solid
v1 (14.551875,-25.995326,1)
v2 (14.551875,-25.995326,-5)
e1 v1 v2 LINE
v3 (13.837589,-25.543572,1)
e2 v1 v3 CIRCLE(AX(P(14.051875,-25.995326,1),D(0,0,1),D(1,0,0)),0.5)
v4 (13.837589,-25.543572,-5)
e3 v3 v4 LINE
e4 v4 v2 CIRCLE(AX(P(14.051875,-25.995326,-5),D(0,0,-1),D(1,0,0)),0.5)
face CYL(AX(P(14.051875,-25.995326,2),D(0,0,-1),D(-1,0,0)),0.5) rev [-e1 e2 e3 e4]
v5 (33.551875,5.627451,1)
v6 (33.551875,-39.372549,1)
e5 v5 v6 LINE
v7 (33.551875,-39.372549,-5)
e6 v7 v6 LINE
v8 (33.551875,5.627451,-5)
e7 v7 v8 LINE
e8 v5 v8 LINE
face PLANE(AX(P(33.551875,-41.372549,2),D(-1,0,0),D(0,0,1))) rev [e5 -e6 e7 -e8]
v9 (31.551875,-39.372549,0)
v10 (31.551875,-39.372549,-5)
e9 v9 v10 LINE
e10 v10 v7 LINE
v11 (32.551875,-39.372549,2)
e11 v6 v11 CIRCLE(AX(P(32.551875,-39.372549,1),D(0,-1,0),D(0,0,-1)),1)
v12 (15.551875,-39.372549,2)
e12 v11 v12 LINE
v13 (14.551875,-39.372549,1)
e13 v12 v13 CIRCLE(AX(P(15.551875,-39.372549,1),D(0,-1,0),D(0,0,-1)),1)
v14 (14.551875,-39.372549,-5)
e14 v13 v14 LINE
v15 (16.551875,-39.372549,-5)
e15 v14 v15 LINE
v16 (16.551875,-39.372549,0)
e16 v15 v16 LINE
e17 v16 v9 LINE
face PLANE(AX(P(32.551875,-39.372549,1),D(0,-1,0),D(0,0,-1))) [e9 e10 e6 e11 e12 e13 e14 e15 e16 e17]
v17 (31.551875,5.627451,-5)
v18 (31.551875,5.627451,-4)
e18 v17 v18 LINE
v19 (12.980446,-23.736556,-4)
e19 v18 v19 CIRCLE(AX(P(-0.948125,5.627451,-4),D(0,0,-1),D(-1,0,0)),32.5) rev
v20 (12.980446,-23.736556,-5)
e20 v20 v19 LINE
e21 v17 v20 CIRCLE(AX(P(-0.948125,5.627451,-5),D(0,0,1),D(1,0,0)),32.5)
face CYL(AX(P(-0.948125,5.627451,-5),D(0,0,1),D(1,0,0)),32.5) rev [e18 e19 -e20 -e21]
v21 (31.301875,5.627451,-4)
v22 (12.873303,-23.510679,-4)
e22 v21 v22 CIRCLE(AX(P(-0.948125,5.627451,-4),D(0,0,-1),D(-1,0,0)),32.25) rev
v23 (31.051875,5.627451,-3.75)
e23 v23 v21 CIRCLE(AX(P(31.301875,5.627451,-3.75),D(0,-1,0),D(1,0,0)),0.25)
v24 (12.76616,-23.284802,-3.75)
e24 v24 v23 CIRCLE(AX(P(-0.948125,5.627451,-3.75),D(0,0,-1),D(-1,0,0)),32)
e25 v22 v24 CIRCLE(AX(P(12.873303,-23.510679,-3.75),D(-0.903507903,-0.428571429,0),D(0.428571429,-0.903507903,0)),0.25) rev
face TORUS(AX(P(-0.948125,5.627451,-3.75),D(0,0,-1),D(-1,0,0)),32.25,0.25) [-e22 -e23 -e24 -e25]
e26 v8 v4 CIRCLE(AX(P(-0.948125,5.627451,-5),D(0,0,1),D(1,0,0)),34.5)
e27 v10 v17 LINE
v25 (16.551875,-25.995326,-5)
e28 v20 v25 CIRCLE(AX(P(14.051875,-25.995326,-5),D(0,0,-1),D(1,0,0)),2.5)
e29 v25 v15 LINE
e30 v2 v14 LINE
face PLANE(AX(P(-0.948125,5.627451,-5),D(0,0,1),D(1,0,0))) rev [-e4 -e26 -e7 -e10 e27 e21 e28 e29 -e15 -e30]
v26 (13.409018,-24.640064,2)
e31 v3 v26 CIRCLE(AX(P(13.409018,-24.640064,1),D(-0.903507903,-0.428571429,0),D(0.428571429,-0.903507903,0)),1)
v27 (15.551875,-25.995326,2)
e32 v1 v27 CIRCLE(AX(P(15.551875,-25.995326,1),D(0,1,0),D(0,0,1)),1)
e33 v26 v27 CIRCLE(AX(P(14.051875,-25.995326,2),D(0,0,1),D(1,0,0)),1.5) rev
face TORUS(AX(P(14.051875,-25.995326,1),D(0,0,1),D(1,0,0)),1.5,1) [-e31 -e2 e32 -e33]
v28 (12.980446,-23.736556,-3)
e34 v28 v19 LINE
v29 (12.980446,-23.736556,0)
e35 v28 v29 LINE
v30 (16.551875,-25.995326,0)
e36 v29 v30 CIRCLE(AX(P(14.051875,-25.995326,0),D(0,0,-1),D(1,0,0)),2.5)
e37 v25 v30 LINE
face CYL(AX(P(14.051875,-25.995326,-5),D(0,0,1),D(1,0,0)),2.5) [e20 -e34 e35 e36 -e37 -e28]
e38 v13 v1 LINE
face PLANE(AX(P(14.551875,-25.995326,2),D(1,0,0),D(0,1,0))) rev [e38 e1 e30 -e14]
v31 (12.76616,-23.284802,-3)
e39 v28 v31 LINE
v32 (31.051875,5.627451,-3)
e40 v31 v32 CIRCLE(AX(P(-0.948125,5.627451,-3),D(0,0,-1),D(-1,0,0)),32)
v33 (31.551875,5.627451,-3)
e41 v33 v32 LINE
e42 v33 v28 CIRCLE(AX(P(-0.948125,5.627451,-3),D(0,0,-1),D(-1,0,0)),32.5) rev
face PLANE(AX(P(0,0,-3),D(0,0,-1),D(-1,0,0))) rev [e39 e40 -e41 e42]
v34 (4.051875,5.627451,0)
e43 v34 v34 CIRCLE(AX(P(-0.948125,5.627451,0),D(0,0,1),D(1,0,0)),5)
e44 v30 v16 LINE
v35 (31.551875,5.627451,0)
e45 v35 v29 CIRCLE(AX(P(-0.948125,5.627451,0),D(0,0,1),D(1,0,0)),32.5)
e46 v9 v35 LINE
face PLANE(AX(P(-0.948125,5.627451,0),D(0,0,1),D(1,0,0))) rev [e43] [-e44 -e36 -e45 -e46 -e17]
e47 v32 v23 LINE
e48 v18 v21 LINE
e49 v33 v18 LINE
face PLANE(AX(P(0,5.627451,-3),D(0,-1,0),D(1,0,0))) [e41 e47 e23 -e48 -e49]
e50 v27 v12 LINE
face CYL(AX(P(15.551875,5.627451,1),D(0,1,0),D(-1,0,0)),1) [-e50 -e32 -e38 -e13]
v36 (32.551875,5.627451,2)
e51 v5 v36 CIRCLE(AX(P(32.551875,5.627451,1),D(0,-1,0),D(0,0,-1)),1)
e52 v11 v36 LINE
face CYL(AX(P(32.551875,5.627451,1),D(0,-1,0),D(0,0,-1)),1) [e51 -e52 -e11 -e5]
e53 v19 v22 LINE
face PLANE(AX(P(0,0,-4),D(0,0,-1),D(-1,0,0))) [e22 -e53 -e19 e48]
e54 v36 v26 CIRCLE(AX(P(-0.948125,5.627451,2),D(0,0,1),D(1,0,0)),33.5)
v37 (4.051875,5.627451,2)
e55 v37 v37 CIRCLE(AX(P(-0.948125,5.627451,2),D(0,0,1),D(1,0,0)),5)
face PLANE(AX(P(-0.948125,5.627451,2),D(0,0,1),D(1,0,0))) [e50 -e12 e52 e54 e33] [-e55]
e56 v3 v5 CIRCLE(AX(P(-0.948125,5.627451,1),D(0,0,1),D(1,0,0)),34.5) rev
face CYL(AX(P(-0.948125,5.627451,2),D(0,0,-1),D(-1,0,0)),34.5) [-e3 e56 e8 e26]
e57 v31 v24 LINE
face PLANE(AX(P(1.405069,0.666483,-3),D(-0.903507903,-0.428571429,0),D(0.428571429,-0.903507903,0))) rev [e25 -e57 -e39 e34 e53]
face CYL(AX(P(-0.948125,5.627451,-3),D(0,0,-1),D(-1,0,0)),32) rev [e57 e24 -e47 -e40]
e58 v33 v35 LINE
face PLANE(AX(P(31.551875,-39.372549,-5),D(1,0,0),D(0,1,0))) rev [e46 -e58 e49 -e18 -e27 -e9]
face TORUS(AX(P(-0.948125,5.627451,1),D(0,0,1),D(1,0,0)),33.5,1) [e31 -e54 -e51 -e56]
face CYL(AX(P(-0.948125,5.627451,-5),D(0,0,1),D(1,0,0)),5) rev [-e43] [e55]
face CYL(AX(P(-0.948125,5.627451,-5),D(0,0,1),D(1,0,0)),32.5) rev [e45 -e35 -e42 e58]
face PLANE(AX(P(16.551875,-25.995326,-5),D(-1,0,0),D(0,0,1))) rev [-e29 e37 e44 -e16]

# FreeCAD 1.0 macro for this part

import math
import FreeCAD as App
import Part
import Sketcher
from FreeCAD import Vector
Q = App.Units.Quantity


def edges_at(feature, points):
    """Names of the edges that pass closest to the given points."""
    edges = feature.Shape.Edges
    near = lambda p: min(range(len(edges)), key=lambda i: edges[i].distToShape(Part.Vertex(*p))[0])
    return sorted({f"Edge{near(p) + 1}" for p in points})


def add_polygon(sketch, points):
    """Adds a closed chain of lines whose ends are joined by coincident constraints."""
    first, n = sketch.GeometryCount, len(points)
    for a, b in zip(points, points[1:] + points[:1]):
        sketch.addGeometry(Part.LineSegment(App.Vector(*a, 0), App.Vector(*b, 0)), False)
    for i in range(n):
        sketch.addConstraint(Sketcher.Constraint("Coincident", first + i, 2, first + (i + 1) % n, 1))

doc = App.newDocument("Part")
body = doc.addObject("PartDesign::Body", "Body")

# Sketch on XY plane
sketch1 = doc.addObject("Sketcher::SketchObject", "Sketch")
body.addObject(sketch1)
sketch1.AttachmentSupport = (doc.XY_Plane, [""])
sketch1.MapMode = "FlatFace"
sketch1.addGeometry(Part.LineSegment(Vector(31.6, -39.4, 0), Vector(31.6, 5.6, 0)), False)
sketch1.addGeometry(Part.ArcOfCircle(Part.Circle(Vector(-0.9, 5.6, 0), Vector(0, 0, 1), 32.5), math.radians(0), math.radians(295)), False)
sketch1.addGeometry(Part.ArcOfCircle(Part.Circle(Vector(14.1, -26, 0), Vector(0, 0, 1), 2.5), math.radians(0), math.radians(115)), False)
sketch1.addGeometry(Part.LineSegment(Vector(16.6, -26, 0), Vector(16.6, -39.4, 0)), False)
sketch1.addGeometry(Part.LineSegment(Vector(16.6, -39.4, 0), Vector(31.6, -39.4, 0)), False)
sketch1.addConstraint(Sketcher.Constraint("Tangent", 0, 2, 1, 1))
sketch1.addConstraint(Sketcher.Constraint("Tangent", 1, 2, 2, 2))
sketch1.addConstraint(Sketcher.Constraint("Tangent", 2, 1, 3, 1))
sketch1.addConstraint(Sketcher.Constraint("Coincident", 3, 2, 4, 1))
sketch1.addConstraint(Sketcher.Constraint("Coincident", 4, 2, 0, 1))
sketch1.addConstraint(Sketcher.Constraint("Vertical", 0))
sketch1.addConstraint(Sketcher.Constraint("Vertical", 3))
sketch1.addConstraint(Sketcher.Constraint("Horizontal", 4))
sketch1.addConstraint(Sketcher.Constraint("Radius", 1, Q("32.5 mm")))
sketch1.addConstraint(Sketcher.Constraint("Radius", 2, Q("2.5 mm")))
sketch1.addConstraint(Sketcher.Constraint("DistanceX", 4, 1, 4, 2, Q("15 mm")))
sketch1.addConstraint(Sketcher.Constraint("DistanceY", 0, 1, 0, 2, Q("45 mm")))
sketch1.addConstraint(Sketcher.Constraint("DistanceY", -1, 1, 1, 3, Q("5.627451 mm")))
sketch1.addConstraint(Sketcher.Constraint("DistanceX", 1, 3, -1, 1, Q("0.948125 mm")))
pad1 = doc.addObject("PartDesign::Pad", "Pad")
body.addObject(pad1)
pad1.Profile = sketch1
pad1.Length = 2
body2 = doc.addObject("PartDesign::Body", "Body001")

# Sketch on XY plane
sketch2 = doc.addObject("Sketcher::SketchObject", "Sketch001")
body2.addObject(sketch2)
sketch2.AttachmentSupport = (doc.getObject("XY_Plane001"), [""])
sketch2.MapMode = "FlatFace"
sketch2.AttachmentOffset = App.Placement(Vector(0, 0, -5), App.Rotation())
sketch2.addGeometry(Part.LineSegment(Vector(14.6, -41.4, 0), Vector(33.6, -41.4, 0)), False)
sketch2.addGeometry(Part.LineSegment(Vector(33.6, -41.4, 0), Vector(33.6, 5.6, 0)), False)
sketch2.addGeometry(Part.ArcOfCircle(Part.Circle(Vector(-0.9, 5.6, 0), Vector(0, 0, 1), 34.5), math.radians(0), math.radians(295)), False)
sketch2.addGeometry(Part.ArcOfCircle(Part.Circle(Vector(14.1, -26, 0), Vector(0, 0, 1), 0.5), math.radians(0), math.radians(115)), False)
sketch2.addGeometry(Part.LineSegment(Vector(14.6, -26, 0), Vector(14.6, -41.4, 0)), False)
sketch2.addGeometry(Part.LineSegment(Vector(31.6, -39.4, 0), Vector(16.6, -39.4, 0)), False)
sketch2.addGeometry(Part.LineSegment(Vector(16.6, -39.4, 0), Vector(16.6, -26, 0)), False)
sketch2.addGeometry(Part.ArcOfCircle(Part.Circle(Vector(14.1, -26, 0), Vector(0, 0, 1), 2.5), math.radians(0), math.radians(115)), False)
sketch2.addGeometry(Part.ArcOfCircle(Part.Circle(Vector(-0.9, 5.6, 0), Vector(0, 0, 1), 32.5), math.radians(0), math.radians(295)), False)
sketch2.addGeometry(Part.LineSegment(Vector(31.6, 5.6, 0), Vector(31.6, -39.4, 0)), False)
sketch2.addConstraint(Sketcher.Constraint("Coincident", 0, 2, 1, 1))
sketch2.addConstraint(Sketcher.Constraint("Tangent", 1, 2, 2, 1))
sketch2.addConstraint(Sketcher.Constraint("Tangent", 2, 2, 3, 2))
sketch2.addConstraint(Sketcher.Constraint("Tangent", 3, 1, 4, 1))
sketch2.addConstraint(Sketcher.Constraint("Coincident", 4, 2, 0, 1))
sketch2.addConstraint(Sketcher.Constraint("Coincident", 5, 2, 6, 1))
sketch2.addConstraint(Sketcher.Constraint("Tangent", 6, 2, 7, 1))
sketch2.addConstraint(Sketcher.Constraint("Tangent", 7, 2, 8, 2))
sketch2.addConstraint(Sketcher.Constraint("Tangent", 8, 1, 9, 1))
sketch2.addConstraint(Sketcher.Constraint("Coincident", 9, 2, 5, 1))
sketch2.addConstraint(Sketcher.Constraint("Horizontal", 0))
sketch2.addConstraint(Sketcher.Constraint("Vertical", 1))
sketch2.addConstraint(Sketcher.Constraint("Vertical", 4))
sketch2.addConstraint(Sketcher.Constraint("Horizontal", 5))
sketch2.addConstraint(Sketcher.Constraint("Vertical", 6))
sketch2.addConstraint(Sketcher.Constraint("Vertical", 9))
sketch2.addConstraint(Sketcher.Constraint("Coincident", 7, 3, 3, 3))
sketch2.addConstraint(Sketcher.Constraint("Coincident", 8, 3, 2, 3))
sketch2.addConstraint(Sketcher.Constraint("Radius", 2, Q("34.5 mm")))
sketch2.addConstraint(Sketcher.Constraint("Radius", 3, Q("0.5 mm")))
sketch2.addConstraint(Sketcher.Constraint("Radius", 7, Q("2.5 mm")))
sketch2.addConstraint(Sketcher.Constraint("DistanceX", 0, 1, 0, 2, Q("19 mm")))
sketch2.addConstraint(Sketcher.Constraint("DistanceY", 1, 1, 1, 2, Q("47 mm")))
sketch2.addConstraint(Sketcher.Constraint("DistanceY", 9, 2, 9, 1, Q("45 mm")))
sketch2.addConstraint(Sketcher.Constraint("DistanceY", -1, 1, 2, 3, Q("5.627451 mm")))
sketch2.addConstraint(Sketcher.Constraint("DistanceX", -1, 1, 2, 2, Q("13.837589 mm")))
pad2 = doc.addObject("PartDesign::Pad", "Pad001")
body2.addObject(pad2)
pad2.Profile = sketch2
pad2.Length = 5

# Sketch on XY plane
sketch3 = doc.addObject("Sketcher::SketchObject", "Sketch002")
body2.addObject(sketch3)
sketch3.AttachmentSupport = (doc.getObject("XY_Plane001"), [""])
sketch3.MapMode = "FlatFace"
sketch3.AttachmentOffset = App.Placement(Vector(0, 0, -4), App.Rotation())
sketch3.addGeometry(Part.ArcOfCircle(Part.Circle(Vector(-0.95, 5.63, 0), Vector(0, 0, 1), 32.5), math.radians(0), math.radians(295)), False)
sketch3.addGeometry(Part.LineSegment(Vector(31.55, 5.63, 0), Vector(31.05, 5.63, 0)), False)
sketch3.addGeometry(Part.ArcOfCircle(Part.Circle(Vector(-0.95, 5.63, 0), Vector(0, 0, 1), 32), math.radians(0), math.radians(295)), False)
sketch3.addGeometry(Part.LineSegment(Vector(12.77, -23.28, 0), Vector(12.98, -23.74, 0)), False)
sketch3.addConstraint(Sketcher.Constraint("Coincident", 0, 1, 1, 1))
sketch3.addConstraint(Sketcher.Constraint("Coincident", 1, 2, 2, 1))
sketch3.addConstraint(Sketcher.Constraint("Coincident", 2, 2, 3, 1))
sketch3.addConstraint(Sketcher.Constraint("Coincident", 3, 2, 0, 2))
sketch3.addConstraint(Sketcher.Constraint("Horizontal", 1))
sketch3.addConstraint(Sketcher.Constraint("Coincident", 2, 3, 0, 3))
sketch3.addConstraint(Sketcher.Constraint("Horizontal", 2, 3, 0, 1))
sketch3.addConstraint(Sketcher.Constraint("Radius", 2, Q("32 mm")))
sketch3.addConstraint(Sketcher.Constraint("Radius", 0, Q("32.5 mm")))
sketch3.addConstraint(Sketcher.Constraint("DistanceY", 2, 2, -1, 1, Q("23.284802 mm")))
sketch3.addConstraint(Sketcher.Constraint("DistanceY", -1, 1, 0, 3, Q("5.627451 mm")))
sketch3.addConstraint(Sketcher.Constraint("DistanceX", -1, 1, 2, 2, Q("12.76616 mm")))
sketch3.addConstraint(Sketcher.Constraint("DistanceX", 2, 3, 3, 2, Q("13.928571 mm")))
pad3 = doc.addObject("PartDesign::Pad", "Pad002")
body2.addObject(pad3)
pad3.Profile = sketch3
pad3.Length = 1
doc.recompute()

fillet = doc.addObject("PartDesign::Fillet", "Fillet")
body2.addObject(fillet)
fillet.Base = (pad3, edges_at(pad3, [(-27.993, 22.732, -4)]))
fillet.Radius = 0.25
body.AllowCompound = True
doc.recompute()

boolean = doc.addObject("PartDesign::Boolean", "Boolean")
body.addObject(boolean)
boolean.Type = "Fuse"
boolean.addObjects([body2])

# Sketch on XY plane
sketch4 = doc.addObject("Sketcher::SketchObject", "Sketch003")
body.addObject(sketch4)
sketch4.AttachmentSupport = (doc.XY_Plane, [""])
sketch4.MapMode = "FlatFace"
sketch4.addGeometry(Part.LineSegment(Vector(14.6, -26, 0), Vector(14.6, -41.4, 0)), False)
sketch4.addGeometry(Part.LineSegment(Vector(14.6, -41.4, 0), Vector(33.6, -41.4, 0)), False)
sketch4.addGeometry(Part.LineSegment(Vector(33.6, -41.4, 0), Vector(33.6, 5.6, 0)), False)
sketch4.addGeometry(Part.ArcOfCircle(Part.Circle(Vector(-0.9, 5.6, 0), Vector(0, 0, 1), 34.5), math.radians(0), math.radians(295)), False)
sketch4.addGeometry(Part.ArcOfCircle(Part.Circle(Vector(14.1, -26, 0), Vector(0, 0, 1), 0.5), math.radians(0), math.radians(115)), False)
sketch4.addConstraint(Sketcher.Constraint("Coincident", 0, 2, 1, 1))
sketch4.addConstraint(Sketcher.Constraint("Coincident", 1, 2, 2, 1))
sketch4.addConstraint(Sketcher.Constraint("Tangent", 2, 2, 3, 1))
sketch4.addConstraint(Sketcher.Constraint("Tangent", 3, 2, 4, 2))
sketch4.addConstraint(Sketcher.Constraint("Tangent", 4, 1, 0, 1))
sketch4.addConstraint(Sketcher.Constraint("Vertical", 0))
sketch4.addConstraint(Sketcher.Constraint("Horizontal", 1))
sketch4.addConstraint(Sketcher.Constraint("Vertical", 2))
sketch4.addConstraint(Sketcher.Constraint("Radius", 3, Q("34.5 mm")))
sketch4.addConstraint(Sketcher.Constraint("Radius", 4, Q("0.5 mm")))
sketch4.addConstraint(Sketcher.Constraint("DistanceX", 1, 1, 1, 2, Q("19 mm")))
sketch4.addConstraint(Sketcher.Constraint("DistanceY", 2, 1, 2, 2, Q("47 mm")))
sketch4.addConstraint(Sketcher.Constraint("DistanceY", -1, 1, 3, 3, Q("5.627451 mm")))
sketch4.addConstraint(Sketcher.Constraint("DistanceX", -1, 1, 3, 2, Q("13.837589 mm")))
pad4 = doc.addObject("PartDesign::Pad", "Pad003")
body.addObject(pad4)
pad4.Profile = sketch4
pad4.Length = 2
doc.recompute()

fillet2 = doc.addObject("PartDesign::Fillet", "Fillet001")
body.addObject(fillet2)
fillet2.Base = (pad4, edges_at(pad4, [
    (14.319, -25.573, 2),
    (14.552, -33.684, 2),
    (33.552, -17.873, 2),
    (-30.106, 24.068, 2),
]))
fillet2.Radius = 1

# Sketch on XY plane
sketch5 = doc.addObject("Sketcher::SketchObject", "Sketch004")
body.addObject(sketch5)
sketch5.AttachmentSupport = (doc.XY_Plane, [""])
sketch5.MapMode = "FlatFace"
sketch5.AttachmentOffset = App.Placement(Vector(0, 0, 2), App.Rotation())
sketch5.addGeometry(Part.Circle(Vector(-1, 6, 0), Vector(0, 0, 1), 5), False)
sketch5.addConstraint(Sketcher.Constraint("Diameter", 0, Q("10 mm")))
sketch5.addConstraint(Sketcher.Constraint("DistanceY", -1, 1, 0, 3, Q("5.627451 mm")))
sketch5.addConstraint(Sketcher.Constraint("DistanceX", 0, 3, -1, 1, Q("0.948125 mm")))
pocket1 = doc.addObject("PartDesign::Pocket", "Pocket")
body.addObject(pocket1)
pocket1.Profile = sketch5
pocket1.Type = "ThroughAll"

# Sketch on XZ plane
sketch6 = doc.addObject("Sketcher::SketchObject", "Sketch005")
body.addObject(sketch6)
sketch6.AttachmentSupport = (doc.XZ_Plane, [""])
sketch6.MapMode = "FlatFace"
sketch6.AttachmentOffset = App.Placement(Vector(0, 0, 41.372549), App.Rotation())
add_polygon(sketch6, [(17, 0), (17, -5), (32, -5), (32, 0)])  # lines 0-3
sketch6.addConstraint(Sketcher.Constraint("Vertical", 0))
sketch6.addConstraint(Sketcher.Constraint("Horizontal", 1))
sketch6.addConstraint(Sketcher.Constraint("Vertical", 2))
sketch6.addConstraint(Sketcher.Constraint("Horizontal", 3))
sketch6.addConstraint(Sketcher.Constraint("PointOnObject", 2, 2, -1))
sketch6.addConstraint(Sketcher.Constraint("DistanceX", 1, 1, 1, 2, Q("15 mm")))
sketch6.addConstraint(Sketcher.Constraint("DistanceY", 0, 2, 0, 1, Q("5 mm")))
sketch6.addConstraint(Sketcher.Constraint("DistanceX", -1, 1, 0, 2, Q("16.551875 mm")))
pocket2 = doc.addObject("PartDesign::Pocket", "Pocket001")
body.addObject(pocket2)
pocket2.Profile = sketch6
pocket2.Length = 2

# Sketch on XZ plane
sketch7 = doc.addObject("Sketcher::SketchObject", "Sketch006")
body.addObject(sketch7)
sketch7.AttachmentSupport = (doc.XZ_Plane, [""])
sketch7.MapMode = "FlatFace"
sketch7.AttachmentOffset = App.Placement(Vector(0, 0, 41.372549), App.Rotation())
sketch7.addGeometry(Part.LineSegment(Vector(14.6, -5, 0), Vector(16.6, -5, 0)), False)
sketch7.addGeometry(Part.LineSegment(Vector(16.6, -5, 0), Vector(16.6, 0, 0)), False)
sketch7.addGeometry(Part.LineSegment(Vector(16.6, 0, 0), Vector(31.6, 0, 0)), False)
sketch7.addGeometry(Part.LineSegment(Vector(31.6, 0, 0), Vector(31.6, -5, 0)), False)
sketch7.addGeometry(Part.LineSegment(Vector(31.6, -5, 0), Vector(33.6, -5, 0)), False)
sketch7.addGeometry(Part.LineSegment(Vector(33.6, -5, 0), Vector(33.6, 1, 0)), False)
sketch7.addGeometry(Part.ArcOfCircle(Part.Circle(Vector(32.6, 1, 0), Vector(0, 0, 1), 1), math.radians(0), math.radians(90)), False)
sketch7.addGeometry(Part.LineSegment(Vector(32.6, 2, 0), Vector(15.6, 2, 0)), False)
sketch7.addGeometry(Part.ArcOfCircle(Part.Circle(Vector(15.6, 1, 0), Vector(0, 0, 1), 1), math.radians(90), math.radians(180)), False)
sketch7.addGeometry(Part.LineSegment(Vector(14.6, 1, 0), Vector(14.6, -5, 0)), False)
sketch7.addConstraint(Sketcher.Constraint("Coincident", 0, 2, 1, 1))
sketch7.addConstraint(Sketcher.Constraint("Coincident", 1, 2, 2, 1))
sketch7.addConstraint(Sketcher.Constraint("Coincident", 2, 2, 3, 1))
sketch7.addConstraint(Sketcher.Constraint("Coincident", 3, 2, 4, 1))
sketch7.addConstraint(Sketcher.Constraint("Coincident", 4, 2, 5, 1))
sketch7.addConstraint(Sketcher.Constraint("Tangent", 5, 2, 6, 1))
sketch7.addConstraint(Sketcher.Constraint("Tangent", 6, 2, 7, 1))
sketch7.addConstraint(Sketcher.Constraint("Tangent", 7, 2, 8, 1))
sketch7.addConstraint(Sketcher.Constraint("Tangent", 8, 2, 9, 1))
sketch7.addConstraint(Sketcher.Constraint("Coincident", 9, 2, 0, 1))
sketch7.addConstraint(Sketcher.Constraint("Horizontal", 0))
sketch7.addConstraint(Sketcher.Constraint("Vertical", 1))
sketch7.addConstraint(Sketcher.Constraint("Horizontal", 2))
sketch7.addConstraint(Sketcher.Constraint("Vertical", 3))
sketch7.addConstraint(Sketcher.Constraint("Horizontal", 4))
sketch7.addConstraint(Sketcher.Constraint("Vertical", 5))
sketch7.addConstraint(Sketcher.Constraint("Horizontal", 7))
sketch7.addConstraint(Sketcher.Constraint("Vertical", 9))
sketch7.addConstraint(Sketcher.Constraint("Equal", 6, 8))
sketch7.addConstraint(Sketcher.Constraint("PointOnObject", 1, 2, -1))
sketch7.addConstraint(Sketcher.Constraint("Horizontal", 0, 2, 3, 2))
sketch7.addConstraint(Sketcher.Constraint("Equal", 0, 4))
sketch7.addConstraint(Sketcher.Constraint("Radius", 6, Q("1 mm")))
sketch7.addConstraint(Sketcher.Constraint("DistanceX", 0, 1, 0, 2, Q("2 mm")))
sketch7.addConstraint(Sketcher.Constraint("DistanceX", 2, 1, 2, 2, Q("15 mm")))
sketch7.addConstraint(Sketcher.Constraint("DistanceY", 1, 1, 1, 2, Q("5 mm")))
sketch7.addConstraint(Sketcher.Constraint("DistanceY", 5, 1, 5, 2, Q("6 mm")))
sketch7.addConstraint(Sketcher.Constraint("DistanceX", -1, 1, 6, 3, Q("32.551875 mm")))
pocket3 = doc.addObject("PartDesign::Pocket", "Pocket002")
body.addObject(pocket3)
pocket3.Profile = sketch7
pocket3.Length = 2

doc.recompute()
